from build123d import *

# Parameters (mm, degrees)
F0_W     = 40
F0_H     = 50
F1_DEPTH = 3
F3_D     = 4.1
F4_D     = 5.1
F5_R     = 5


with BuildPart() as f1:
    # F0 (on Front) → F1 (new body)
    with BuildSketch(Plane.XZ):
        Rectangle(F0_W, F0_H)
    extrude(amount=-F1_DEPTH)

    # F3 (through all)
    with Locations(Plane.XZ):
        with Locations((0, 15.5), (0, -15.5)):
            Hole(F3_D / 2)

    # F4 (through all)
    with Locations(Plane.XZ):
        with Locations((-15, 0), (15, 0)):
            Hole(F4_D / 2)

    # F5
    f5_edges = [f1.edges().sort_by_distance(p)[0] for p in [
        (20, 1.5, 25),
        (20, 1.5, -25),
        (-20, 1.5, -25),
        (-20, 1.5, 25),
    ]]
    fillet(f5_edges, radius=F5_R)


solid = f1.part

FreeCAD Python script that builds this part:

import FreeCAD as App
import Part
import Sketcher
Q = App.Units.Quantity


def edges_at(feature, points):
    """Names of the edges that pass closest to the given points."""
    edges = feature.Shape.Edges
    near = lambda p: min(range(len(edges)), key=lambda i: edges[i].distToShape(Part.Vertex(*p))[0])
    return sorted({f"Edge{near(p) + 1}" for p in points})


def add_polygon(sketch, points):
    """Adds a closed chain of lines whose ends are joined by coincident constraints."""
    first, n = sketch.GeometryCount, len(points)
    for a, b in zip(points, points[1:] + points[:1]):
        sketch.addGeometry(Part.LineSegment(App.Vector(*a, 0), App.Vector(*b, 0)), False)
    for i in range(n):
        sketch.addConstraint(Sketcher.Constraint("Coincident", first + i, 2, first + (i + 1) % n, 1))

doc = App.newDocument("Part")
params = doc.addObject("Spreadsheet::Sheet", "Params")
for row, (alias, value) in enumerate([
    ("sketch1_width", "40 mm"),
    ("sketch1_height", "50 mm"),
    ("pad1_length", "3 mm"),
    ("sketch2_diameter", "4.1 mm"),
    ("hole_diameter", "4.1 mm"),
    ("sketch3_diameter", "5.1 mm"),
    ("hole2_diameter", "5.1 mm"),
    ("fillet_radius", "5 mm"),
], start=1):
    params.set(f"A{row}", alias)
    params.set(f"B{row}", "=" + value)
    params.setAlias(f"B{row}", alias)

body = doc.addObject("PartDesign::Body", "Body")

sketch1 = body.newObject("Sketcher::SketchObject", "Sketch")
sketch1.AttachmentSupport = (doc.getObject("XZ_Plane"), [""])
sketch1.MapMode = "FlatFace"
add_polygon(sketch1, [(-20, 25), (-20, -25), (20, -25), (20, 25)])
sketch1.addConstraint([
    Sketcher.Constraint("Vertical", 0),
    Sketcher.Constraint("Horizontal", 1),
    Sketcher.Constraint("Vertical", 2),
    Sketcher.Constraint("Horizontal", 3),
    Sketcher.Constraint("Symmetric", 0, 2, 2, 2, -1, 1),
    Sketcher.Constraint("DistanceX", 1, 1, 1, 2, Q("40 mm")),
    Sketcher.Constraint("DistanceY", 0, 2, 0, 1, Q("50 mm")),
])
sketch1.setExpression("Constraints[9]", "Params.sketch1_width")
sketch1.setExpression("Constraints[10]", "Params.sketch1_height")
pad1 = body.newObject("PartDesign::Pad", "Pad")
pad1.Profile = sketch1
pad1.setExpression("Length", "Params.pad1_length")
pad1.Reversed = True

sketch2 = body.newObject("Sketcher::SketchObject", "Sketch001")
sketch2.AttachmentSupport = (doc.getObject("XZ_Plane"), [""])
sketch2.MapMode = "FlatFace"
sketch2.addGeometry([
    Part.Circle(App.Vector(0, 15.5, 0), App.Vector(0, 0, 1), 2),
    Part.Circle(App.Vector(0, -15.5, 0), App.Vector(0, 0, 1), 2),
], False)
sketch2.addConstraint([
    Sketcher.Constraint("Equal", 0, 1),
    Sketcher.Constraint("Symmetric", 0, 3, 1, 3, -1, 1),
    Sketcher.Constraint("PointOnObject", 0, 3, -2),
    Sketcher.Constraint("Diameter", 0, Q("4.1 mm")),
    Sketcher.Constraint("DistanceY", 1, 3, 0, 3, Q("31 mm")),
])
sketch2.setExpression("Constraints[3]", "Params.sketch2_diameter")
doc.recompute()
hole = body.newObject("PartDesign::Hole", "Hole")
hole.Profile = sketch2
hole.ThreadType = "None"
hole.setExpression("Diameter", "Params.hole_diameter")
hole.DepthType = "ThroughAll"

sketch3 = body.newObject("Sketcher::SketchObject", "Sketch002")
sketch3.AttachmentSupport = (doc.getObject("XZ_Plane"), [""])
sketch3.MapMode = "FlatFace"
sketch3.addGeometry([
    Part.Circle(App.Vector(-15, 0, 0), App.Vector(0, 0, 1), 2.5),
    Part.Circle(App.Vector(15, 0, 0), App.Vector(0, 0, 1), 2.5),
], False)
sketch3.addConstraint([
    Sketcher.Constraint("Equal", 0, 1),
    Sketcher.Constraint("Symmetric", 0, 3, 1, 3, -1, 1),
    Sketcher.Constraint("PointOnObject", 0, 3, -1),
    Sketcher.Constraint("Diameter", 0, Q("5.1 mm")),
    Sketcher.Constraint("DistanceX", 0, 3, -1, 1, Q("15 mm")),
])
sketch3.setExpression("Constraints[3]", "Params.sketch3_diameter")
doc.recompute()
hole2 = body.newObject("PartDesign::Hole", "Hole001")
hole2.Profile = sketch3
hole2.ThreadType = "None"
hole2.setExpression("Diameter", "Params.hole2_diameter")
hole2.DepthType = "ThroughAll"
doc.recompute()

fillet = body.newObject("PartDesign::Fillet", "Fillet")
fillet.Base = (hole2, edges_at(hole2, [
    (20, 1.5, 25),
    (20, 1.5, -25),
    (-20, 1.5, -25),
    (-20, 1.5, 25),
]))
fillet.setExpression("Radius", "Params.fillet_radius")

doc.recompute()
